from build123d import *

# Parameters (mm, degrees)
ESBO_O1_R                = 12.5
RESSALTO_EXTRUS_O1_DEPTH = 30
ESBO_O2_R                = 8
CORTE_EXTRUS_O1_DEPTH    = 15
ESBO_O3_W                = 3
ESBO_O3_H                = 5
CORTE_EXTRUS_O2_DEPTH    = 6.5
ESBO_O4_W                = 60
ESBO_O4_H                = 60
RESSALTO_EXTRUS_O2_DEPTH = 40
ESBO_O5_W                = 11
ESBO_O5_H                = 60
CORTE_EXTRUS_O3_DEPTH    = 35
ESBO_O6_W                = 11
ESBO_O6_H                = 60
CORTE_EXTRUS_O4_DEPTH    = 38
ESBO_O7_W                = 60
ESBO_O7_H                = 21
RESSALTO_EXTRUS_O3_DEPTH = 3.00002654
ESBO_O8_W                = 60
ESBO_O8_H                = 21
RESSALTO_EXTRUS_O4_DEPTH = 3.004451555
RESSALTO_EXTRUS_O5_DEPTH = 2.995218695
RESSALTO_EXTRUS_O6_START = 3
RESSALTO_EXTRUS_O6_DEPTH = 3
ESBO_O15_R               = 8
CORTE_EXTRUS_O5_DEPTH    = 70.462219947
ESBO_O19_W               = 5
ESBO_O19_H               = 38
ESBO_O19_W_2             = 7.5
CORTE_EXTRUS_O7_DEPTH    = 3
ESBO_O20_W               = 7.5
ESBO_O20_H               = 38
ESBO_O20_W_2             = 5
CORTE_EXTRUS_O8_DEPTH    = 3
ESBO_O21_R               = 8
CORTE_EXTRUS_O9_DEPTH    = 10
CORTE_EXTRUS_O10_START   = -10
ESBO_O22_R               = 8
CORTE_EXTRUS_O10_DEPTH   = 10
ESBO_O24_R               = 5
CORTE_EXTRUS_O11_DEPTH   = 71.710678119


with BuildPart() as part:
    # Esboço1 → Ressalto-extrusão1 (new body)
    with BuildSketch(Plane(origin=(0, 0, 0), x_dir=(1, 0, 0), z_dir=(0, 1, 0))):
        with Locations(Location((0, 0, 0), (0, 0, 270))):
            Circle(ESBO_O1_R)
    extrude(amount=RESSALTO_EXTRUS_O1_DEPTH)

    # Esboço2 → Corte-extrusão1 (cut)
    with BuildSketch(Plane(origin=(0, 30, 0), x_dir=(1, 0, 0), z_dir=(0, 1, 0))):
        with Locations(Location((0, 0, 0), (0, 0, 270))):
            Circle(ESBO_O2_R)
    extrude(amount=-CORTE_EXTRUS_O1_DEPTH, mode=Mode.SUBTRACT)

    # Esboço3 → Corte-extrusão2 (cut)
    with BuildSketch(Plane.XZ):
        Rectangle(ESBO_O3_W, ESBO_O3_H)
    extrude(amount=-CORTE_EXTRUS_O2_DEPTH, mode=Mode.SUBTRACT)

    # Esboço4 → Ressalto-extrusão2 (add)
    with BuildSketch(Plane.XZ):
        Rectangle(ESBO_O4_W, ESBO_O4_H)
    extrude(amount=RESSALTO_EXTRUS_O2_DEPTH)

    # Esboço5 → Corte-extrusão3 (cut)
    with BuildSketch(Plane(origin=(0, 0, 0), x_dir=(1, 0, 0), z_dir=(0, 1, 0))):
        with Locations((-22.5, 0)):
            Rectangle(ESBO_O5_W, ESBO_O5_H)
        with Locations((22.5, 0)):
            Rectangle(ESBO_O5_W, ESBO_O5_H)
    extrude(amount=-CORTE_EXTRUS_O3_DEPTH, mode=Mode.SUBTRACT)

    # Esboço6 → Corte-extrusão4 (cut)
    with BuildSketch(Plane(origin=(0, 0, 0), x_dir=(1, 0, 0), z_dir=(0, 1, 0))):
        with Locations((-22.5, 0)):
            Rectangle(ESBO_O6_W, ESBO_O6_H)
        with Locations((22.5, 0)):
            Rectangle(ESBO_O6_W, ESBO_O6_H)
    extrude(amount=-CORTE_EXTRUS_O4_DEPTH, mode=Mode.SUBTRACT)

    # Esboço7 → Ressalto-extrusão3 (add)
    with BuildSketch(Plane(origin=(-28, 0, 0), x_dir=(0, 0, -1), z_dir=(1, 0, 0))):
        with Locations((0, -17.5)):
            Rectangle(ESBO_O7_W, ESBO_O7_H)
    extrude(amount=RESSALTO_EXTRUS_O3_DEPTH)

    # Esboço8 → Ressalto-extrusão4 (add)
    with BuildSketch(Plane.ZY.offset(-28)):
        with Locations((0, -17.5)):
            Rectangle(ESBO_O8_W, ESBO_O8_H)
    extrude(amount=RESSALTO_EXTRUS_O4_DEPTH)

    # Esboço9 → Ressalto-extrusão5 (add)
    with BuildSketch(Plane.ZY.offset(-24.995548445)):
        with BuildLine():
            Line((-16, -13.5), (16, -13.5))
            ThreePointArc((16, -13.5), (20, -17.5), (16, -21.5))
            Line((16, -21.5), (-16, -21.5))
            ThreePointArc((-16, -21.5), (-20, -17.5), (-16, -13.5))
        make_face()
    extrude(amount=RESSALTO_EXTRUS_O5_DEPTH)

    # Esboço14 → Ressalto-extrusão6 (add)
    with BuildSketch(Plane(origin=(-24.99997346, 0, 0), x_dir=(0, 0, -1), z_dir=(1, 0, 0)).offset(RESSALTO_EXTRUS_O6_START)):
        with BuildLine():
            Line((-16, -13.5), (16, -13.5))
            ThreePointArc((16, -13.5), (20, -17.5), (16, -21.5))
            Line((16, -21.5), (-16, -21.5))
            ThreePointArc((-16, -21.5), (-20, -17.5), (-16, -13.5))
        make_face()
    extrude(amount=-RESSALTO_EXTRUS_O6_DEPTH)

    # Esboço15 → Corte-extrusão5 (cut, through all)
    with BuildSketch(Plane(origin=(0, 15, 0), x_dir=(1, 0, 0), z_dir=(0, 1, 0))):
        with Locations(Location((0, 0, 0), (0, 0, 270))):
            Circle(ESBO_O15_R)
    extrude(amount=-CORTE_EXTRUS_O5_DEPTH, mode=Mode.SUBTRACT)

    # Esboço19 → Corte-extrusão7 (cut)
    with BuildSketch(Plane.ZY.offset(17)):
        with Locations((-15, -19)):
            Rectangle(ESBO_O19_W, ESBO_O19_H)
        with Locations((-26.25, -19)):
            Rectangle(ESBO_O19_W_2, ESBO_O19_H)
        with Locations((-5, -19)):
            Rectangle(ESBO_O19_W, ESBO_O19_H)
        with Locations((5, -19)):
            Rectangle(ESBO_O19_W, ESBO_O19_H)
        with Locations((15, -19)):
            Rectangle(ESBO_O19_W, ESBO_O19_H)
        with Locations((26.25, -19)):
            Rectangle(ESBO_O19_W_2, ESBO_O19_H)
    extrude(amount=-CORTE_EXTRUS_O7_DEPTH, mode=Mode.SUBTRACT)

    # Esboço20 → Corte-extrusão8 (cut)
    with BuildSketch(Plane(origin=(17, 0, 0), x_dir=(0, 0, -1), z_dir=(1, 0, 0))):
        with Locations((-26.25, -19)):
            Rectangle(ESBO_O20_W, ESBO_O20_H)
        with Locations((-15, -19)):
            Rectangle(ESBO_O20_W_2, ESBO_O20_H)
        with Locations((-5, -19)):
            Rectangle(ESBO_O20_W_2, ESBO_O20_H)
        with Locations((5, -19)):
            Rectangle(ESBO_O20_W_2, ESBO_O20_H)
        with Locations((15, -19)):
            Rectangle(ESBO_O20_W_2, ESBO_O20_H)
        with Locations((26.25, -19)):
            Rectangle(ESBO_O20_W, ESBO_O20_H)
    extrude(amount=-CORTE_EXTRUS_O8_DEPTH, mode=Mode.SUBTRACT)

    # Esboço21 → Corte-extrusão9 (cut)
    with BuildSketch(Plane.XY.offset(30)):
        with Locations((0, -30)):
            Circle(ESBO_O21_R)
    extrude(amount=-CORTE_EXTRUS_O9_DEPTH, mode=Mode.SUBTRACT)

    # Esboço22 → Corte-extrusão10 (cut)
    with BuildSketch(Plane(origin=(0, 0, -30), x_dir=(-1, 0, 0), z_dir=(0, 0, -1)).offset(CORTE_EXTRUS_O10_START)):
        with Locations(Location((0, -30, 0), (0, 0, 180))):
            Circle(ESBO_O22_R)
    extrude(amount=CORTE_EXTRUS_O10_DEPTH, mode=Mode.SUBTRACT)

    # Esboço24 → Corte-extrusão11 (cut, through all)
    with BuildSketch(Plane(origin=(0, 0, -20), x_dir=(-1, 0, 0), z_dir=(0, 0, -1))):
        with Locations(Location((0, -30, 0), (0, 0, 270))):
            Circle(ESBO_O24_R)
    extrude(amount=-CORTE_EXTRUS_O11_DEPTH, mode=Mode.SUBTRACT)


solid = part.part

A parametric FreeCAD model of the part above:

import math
import FreeCAD as App
import Part
import Sketcher

doc = App.newDocument("Part")
params = doc.addObject("Spreadsheet::Sheet", "Params")
for row, (alias, value) in enumerate([
    ("sketch1_diameter", "25 mm"),
    ("pad1_length", "30 mm"),
    ("sketch2_diameter", "16 mm"),
    ("pocket1_length", "15 mm"),
    ("sketch3_width", "3 mm"),
    ("sketch3_height", "5 mm"),
    ("pocket2_length", "6.5 mm"),
    ("sketch4_width", "60 mm"),
    ("pad2_length", "40 mm"),
    ("sketch5_width", "11 mm"),
    ("sketch5_height", "60 mm"),
    ("pocket3_length", "35 mm"),
    ("sketch6_width", "11 mm"),
    ("sketch6_height", "60 mm"),
    ("pocket4_length", "38 mm"),
    ("sketch7_width", "21 mm"),
    ("sketch7_height", "60 mm"),
    ("pad3_length", "3.000027 mm"),
    ("sketch8_width", "21 mm"),
    ("sketch8_height", "60 mm"),
    ("pad4_length", "3.004452 mm"),
    ("sketch9_radius", "4 mm"),
    ("sketch9_height", "32 mm"),
    ("pad5_length", "2.995219 mm"),
    ("sketch10_radius", "4 mm"),
    ("sketch10_height", "32 mm"),
    ("pad6_length", "3 mm"),
    ("sketch11_diameter", "16 mm"),
    ("sketch12_width", "38 mm"),
    ("sketch12_height", "5 mm"),
    ("sketch12_height2", "7.5 mm"),
    ("pocket6_length", "3 mm"),
    ("sketch13_width", "38 mm"),
    ("sketch13_height", "5 mm"),
    ("sketch13_height2", "7.5 mm"),
    ("pocket7_length", "3 mm"),
    ("sketch14_diameter", "16 mm"),
    ("pocket8_length", "10 mm"),
    ("sketch15_diameter", "16 mm"),
    ("pocket9_length", "10 mm"),
    ("sketch16_diameter", "10 mm"),
], start=1):
    params.set(f"A{row}", alias)
    params.set(f"B{row}", "=" + value)
    params.setAlias(f"B{row}", alias)

body = doc.addObject("PartDesign::Body", "Body")

# Sketch on XZ plane
sketch1 = doc.addObject("Sketcher::SketchObject", "Sketch")
body.addObject(sketch1)
sketch1.AttachmentSupport = (doc.XZ_Plane, [""])
sketch1.MapMode = "FlatFace"
sketch1.addGeometry(Part.Circle(App.Vector(0, 0, 0), App.Vector(0, 0, 1), 12), False)
sketch1.addConstraint([
    Sketcher.Constraint("Coincident", 0, 3, -1, 1),
    Sketcher.Constraint("Diameter", 0, 25.0),
])
sketch1.setExpression("Constraints[1]", "Params.sketch1_diameter")
pad1 = doc.addObject("PartDesign::Pad", "Pad")
body.addObject(pad1)
pad1.Profile = sketch1
pad1.setExpression("Length", "Params.pad1_length")
pad1.Reversed = True

# Sketch on XZ plane
sketch2 = doc.addObject("Sketcher::SketchObject", "Sketch001")
body.addObject(sketch2)
sketch2.AttachmentSupport = (doc.XZ_Plane, [""])
sketch2.MapMode = "FlatFace"
sketch2.AttachmentOffset = App.Placement(App.Vector(0, 0, -30), App.Rotation())
sketch2.addGeometry(Part.Circle(App.Vector(0, 0, 0), App.Vector(0, 0, 1), 8), False)
sketch2.addConstraint([
    Sketcher.Constraint("Coincident", 0, 3, -1, 1),
    Sketcher.Constraint("Diameter", 0, 16.0),
])
sketch2.setExpression("Constraints[1]", "Params.sketch2_diameter")
pocket1 = doc.addObject("PartDesign::Pocket", "Pocket")
body.addObject(pocket1)
pocket1.Profile = sketch2
pocket1.setExpression("Length", "Params.pocket1_length")
pocket1.Reversed = True

# Sketch on XZ plane
sketch3 = doc.addObject("Sketcher::SketchObject", "Sketch002")
body.addObject(sketch3)
sketch3.AttachmentSupport = (doc.XZ_Plane, [""])
sketch3.MapMode = "FlatFace"
sketch3.addGeometry([
    Part.LineSegment(App.Vector(-1.5, 2.5, 0), App.Vector(-1.5, -2.5, 0)),
    Part.LineSegment(App.Vector(-1.5, -2.5, 0), App.Vector(1.5, -2.5, 0)),
    Part.LineSegment(App.Vector(1.5, -2.5, 0), App.Vector(1.5, 2.5, 0)),
    Part.LineSegment(App.Vector(1.5, 2.5, 0), App.Vector(-1.5, 2.5, 0)),
], False)
sketch3.addConstraint([
    Sketcher.Constraint("Coincident", 0, 2, 1, 1),
    Sketcher.Constraint("Coincident", 1, 2, 2, 1),
    Sketcher.Constraint("Coincident", 2, 2, 3, 1),
    Sketcher.Constraint("Coincident", 3, 2, 0, 1),
    Sketcher.Constraint("Vertical", 0),
    Sketcher.Constraint("Horizontal", 1),
    Sketcher.Constraint("Vertical", 2),
    Sketcher.Constraint("Horizontal", 3),
    Sketcher.Constraint("Symmetric", 0, 2, 2, 2, -1, 1),
    Sketcher.Constraint("DistanceX", 1, 1, 1, 2, 3.0),
    Sketcher.Constraint("DistanceY", 0, 2, 0, 1, 5.0),
])
sketch3.setExpression("Constraints[9]", "Params.sketch3_width")
sketch3.setExpression("Constraints[10]", "Params.sketch3_height")
pocket2 = doc.addObject("PartDesign::Pocket", "Pocket001")
body.addObject(pocket2)
pocket2.Profile = sketch3
pocket2.setExpression("Length", "Params.pocket2_length")

# Sketch on XZ plane
sketch4 = doc.addObject("Sketcher::SketchObject", "Sketch003")
body.addObject(sketch4)
sketch4.AttachmentSupport = (doc.XZ_Plane, [""])
sketch4.MapMode = "FlatFace"
sketch4.addGeometry([
    Part.LineSegment(App.Vector(-30, 30, 0), App.Vector(-30, -30, 0)),
    Part.LineSegment(App.Vector(-30, -30, 0), App.Vector(30, -30, 0)),
    Part.LineSegment(App.Vector(30, -30, 0), App.Vector(30, 30, 0)),
    Part.LineSegment(App.Vector(30, 30, 0), App.Vector(-30, 30, 0)),
], False)
sketch4.addConstraint([
    Sketcher.Constraint("Coincident", 0, 2, 1, 1),
    Sketcher.Constraint("Coincident", 1, 2, 2, 1),
    Sketcher.Constraint("Coincident", 2, 2, 3, 1),
    Sketcher.Constraint("Coincident", 3, 2, 0, 1),
    Sketcher.Constraint("Vertical", 0),
    Sketcher.Constraint("Horizontal", 1),
    Sketcher.Constraint("Vertical", 2),
    Sketcher.Constraint("Horizontal", 3),
    Sketcher.Constraint("Symmetric", 0, 2, 2, 2, -1, 1),
    Sketcher.Constraint("Equal", 3, 0),
    Sketcher.Constraint("DistanceX", 1, 1, 1, 2, 60.0),
])
sketch4.setExpression("Constraints[10]", "Params.sketch4_width")
pad2 = doc.addObject("PartDesign::Pad", "Pad001")
body.addObject(pad2)
pad2.Profile = sketch4
pad2.setExpression("Length", "Params.pad2_length")

# Sketch on XZ plane
sketch5 = doc.addObject("Sketcher::SketchObject", "Sketch004")
body.addObject(sketch5)
sketch5.AttachmentSupport = (doc.XZ_Plane, [""])
sketch5.MapMode = "FlatFace"
sketch5.addGeometry([
    Part.LineSegment(App.Vector(-28, -30, 0), App.Vector(-28, 30, 0)),  # 0
    Part.LineSegment(App.Vector(-28, 30, 0), App.Vector(-17, 30, 0)),  # 1
    Part.LineSegment(App.Vector(-17, 30, 0), App.Vector(-17, -30, 0)),  # 2
    Part.LineSegment(App.Vector(-17, -30, 0), App.Vector(-28, -30, 0)),  # 3
    Part.LineSegment(App.Vector(17, -30, 0), App.Vector(17, 30, 0)),  # 4
    Part.LineSegment(App.Vector(17, 30, 0), App.Vector(28, 30, 0)),  # 5
    Part.LineSegment(App.Vector(28, 30, 0), App.Vector(28, -30, 0)),  # 6
    Part.LineSegment(App.Vector(28, -30, 0), App.Vector(17, -30, 0)),  # 7
], False)
sketch5.addConstraint([
    Sketcher.Constraint("Coincident", 0, 2, 1, 1),
    Sketcher.Constraint("Coincident", 1, 2, 2, 1),
    Sketcher.Constraint("Coincident", 2, 2, 3, 1),
    Sketcher.Constraint("Coincident", 3, 2, 0, 1),
    Sketcher.Constraint("Coincident", 4, 2, 5, 1),
    Sketcher.Constraint("Coincident", 5, 2, 6, 1),
    Sketcher.Constraint("Coincident", 6, 2, 7, 1),
    Sketcher.Constraint("Coincident", 7, 2, 4, 1),
    Sketcher.Constraint("Vertical", 0),
    Sketcher.Constraint("Horizontal", 1),
    Sketcher.Constraint("Vertical", 2),
    Sketcher.Constraint("Horizontal", 3),
    Sketcher.Constraint("Vertical", 4),
    Sketcher.Constraint("Horizontal", 5),
    Sketcher.Constraint("Vertical", 6),
    Sketcher.Constraint("Horizontal", 7),
    Sketcher.Constraint("Symmetric", 2, 2, 4, 2, -1, 1),
    Sketcher.Constraint("Symmetric", 0, 2, 6, 2, -1, 1),
    Sketcher.Constraint("Horizontal", 1, 2, 4, 2),
    Sketcher.Constraint("DistanceX", 1, 1, 1, 2, 11.0),
    Sketcher.Constraint("DistanceY", 0, 1, 0, 2, 60.0),
    Sketcher.Constraint("DistanceX", 0, 2, -1, 1, 28.0),
])
sketch5.setExpression("Constraints[19]", "Params.sketch5_width")
sketch5.setExpression("Constraints[20]", "Params.sketch5_height")
pocket3 = doc.addObject("PartDesign::Pocket", "Pocket002")
body.addObject(pocket3)
pocket3.Profile = sketch5
pocket3.setExpression("Length", "Params.pocket3_length")
pocket3.Reversed = True

# Sketch on XZ plane
sketch6 = doc.addObject("Sketcher::SketchObject", "Sketch005")
body.addObject(sketch6)
sketch6.AttachmentSupport = (doc.XZ_Plane, [""])
sketch6.MapMode = "FlatFace"
sketch6.addGeometry([
    Part.LineSegment(App.Vector(-28, -30, 0), App.Vector(-28, 30, 0)),  # 0
    Part.LineSegment(App.Vector(-28, 30, 0), App.Vector(-17, 30, 0)),  # 1
    Part.LineSegment(App.Vector(-17, 30, 0), App.Vector(-17, -30, 0)),  # 2
    Part.LineSegment(App.Vector(-17, -30, 0), App.Vector(-28, -30, 0)),  # 3
    Part.LineSegment(App.Vector(17, -30, 0), App.Vector(17, 30, 0)),  # 4
    Part.LineSegment(App.Vector(17, 30, 0), App.Vector(28, 30, 0)),  # 5
    Part.LineSegment(App.Vector(28, 30, 0), App.Vector(28, -30, 0)),  # 6
    Part.LineSegment(App.Vector(28, -30, 0), App.Vector(17, -30, 0)),  # 7
], False)
sketch6.addConstraint([
    Sketcher.Constraint("Coincident", 0, 2, 1, 1),
    Sketcher.Constraint("Coincident", 1, 2, 2, 1),
    Sketcher.Constraint("Coincident", 2, 2, 3, 1),
    Sketcher.Constraint("Coincident", 3, 2, 0, 1),
    Sketcher.Constraint("Coincident", 4, 2, 5, 1),
    Sketcher.Constraint("Coincident", 5, 2, 6, 1),
    Sketcher.Constraint("Coincident", 6, 2, 7, 1),
    Sketcher.Constraint("Coincident", 7, 2, 4, 1),
    Sketcher.Constraint("Vertical", 0),
    Sketcher.Constraint("Horizontal", 1),
    Sketcher.Constraint("Vertical", 2),
    Sketcher.Constraint("Horizontal", 3),
    Sketcher.Constraint("Vertical", 4),
    Sketcher.Constraint("Horizontal", 5),
    Sketcher.Constraint("Vertical", 6),
    Sketcher.Constraint("Horizontal", 7),
    Sketcher.Constraint("Symmetric", 2, 2, 4, 2, -1, 1),
    Sketcher.Constraint("Symmetric", 0, 2, 6, 2, -1, 1),
    Sketcher.Constraint("Horizontal", 1, 2, 4, 2),
    Sketcher.Constraint("DistanceX", 1, 1, 1, 2, 11.0),
    Sketcher.Constraint("DistanceY", 0, 1, 0, 2, 60.0),
    Sketcher.Constraint("DistanceX", 0, 2, -1, 1, 28.0),
])
sketch6.setExpression("Constraints[19]", "Params.sketch6_width")
sketch6.setExpression("Constraints[20]", "Params.sketch6_height")
pocket4 = doc.addObject("PartDesign::Pocket", "Pocket003")
body.addObject(pocket4)
pocket4.Profile = sketch6
pocket4.setExpression("Length", "Params.pocket4_length")
pocket4.Reversed = True

# Sketch on YZ plane
sketch7 = doc.addObject("Sketcher::SketchObject", "Sketch006")
body.addObject(sketch7)
sketch7.AttachmentSupport = (doc.YZ_Plane, [""])
sketch7.MapMode = "FlatFace"
sketch7.AttachmentOffset = App.Placement(App.Vector(0, 0, -28), App.Rotation())
sketch7.addGeometry([
    Part.LineSegment(App.Vector(-7, 30, 0), App.Vector(-28, 30, 0)),
    Part.LineSegment(App.Vector(-28, 30, 0), App.Vector(-28, -30, 0)),
    Part.LineSegment(App.Vector(-28, -30, 0), App.Vector(-7, -30, 0)),
    Part.LineSegment(App.Vector(-7, -30, 0), App.Vector(-7, 30, 0)),
], False)
sketch7.addConstraint([
    Sketcher.Constraint("Coincident", 0, 2, 1, 1),
    Sketcher.Constraint("Coincident", 1, 2, 2, 1),
    Sketcher.Constraint("Coincident", 2, 2, 3, 1),
    Sketcher.Constraint("Coincident", 3, 2, 0, 1),
    Sketcher.Constraint("Horizontal", 0),
    Sketcher.Constraint("Vertical", 1),
    Sketcher.Constraint("Horizontal", 2),
    Sketcher.Constraint("Vertical", 3),
    Sketcher.Constraint("DistanceX", 0, 2, 0, 1, 21.0),
    Sketcher.Constraint("DistanceY", 1, 2, 1, 1, 60.0),
    Sketcher.Constraint("DistanceX", 0, 2, -1, 1, 28.0),
    Sketcher.Constraint("DistanceY", -1, 1, 0, 2, 30.0),
])
sketch7.setExpression("Constraints[8]", "Params.sketch7_width")
sketch7.setExpression("Constraints[9]", "Params.sketch7_height")
pad3 = doc.addObject("PartDesign::Pad", "Pad002")
body.addObject(pad3)
pad3.Profile = sketch7
pad3.setExpression("Length", "Params.pad3_length")

# Sketch on YZ plane
sketch8 = doc.addObject("Sketcher::SketchObject", "Sketch007")
body.addObject(sketch8)
sketch8.AttachmentSupport = (doc.YZ_Plane, [""])
sketch8.MapMode = "FlatFace"
sketch8.AttachmentOffset = App.Placement(App.Vector(0, 0, 28), App.Rotation())
sketch8.addGeometry([
    Part.LineSegment(App.Vector(-7, -30, 0), App.Vector(-28, -30, 0)),
    Part.LineSegment(App.Vector(-28, -30, 0), App.Vector(-28, 30, 0)),
    Part.LineSegment(App.Vector(-28, 30, 0), App.Vector(-7, 30, 0)),
    Part.LineSegment(App.Vector(-7, 30, 0), App.Vector(-7, -30, 0)),
], False)
sketch8.addConstraint([
    Sketcher.Constraint("Coincident", 0, 2, 1, 1),
    Sketcher.Constraint("Coincident", 1, 2, 2, 1),
    Sketcher.Constraint("Coincident", 2, 2, 3, 1),
    Sketcher.Constraint("Coincident", 3, 2, 0, 1),
    Sketcher.Constraint("Horizontal", 0),
    Sketcher.Constraint("Vertical", 1),
    Sketcher.Constraint("Horizontal", 2),
    Sketcher.Constraint("Vertical", 3),
    Sketcher.Constraint("DistanceX", 0, 2, 0, 1, 21.0),
    Sketcher.Constraint("DistanceY", 1, 1, 1, 2, 60.0),
    Sketcher.Constraint("DistanceX", 0, 2, -1, 1, 28.0),
    Sketcher.Constraint("DistanceY", 0, 2, -1, 1, 30.0),
])
sketch8.setExpression("Constraints[8]", "Params.sketch8_width")
sketch8.setExpression("Constraints[9]", "Params.sketch8_height")
pad4 = doc.addObject("PartDesign::Pad", "Pad003")
body.addObject(pad4)
pad4.Profile = sketch8
pad4.setExpression("Length", "Params.pad4_length")
pad4.Reversed = True

# Sketch on YZ plane
sketch9 = doc.addObject("Sketcher::SketchObject", "Sketch008")
body.addObject(sketch9)
sketch9.AttachmentSupport = (doc.YZ_Plane, [""])
sketch9.MapMode = "FlatFace"
sketch9.AttachmentOffset = App.Placement(App.Vector(0, 0, 24.995548), App.Rotation())
sketch9.addGeometry([
    Part.LineSegment(App.Vector(-13.5, 16, 0), App.Vector(-13.5, -16, 0)),
    Part.ArcOfCircle(Part.Circle(App.Vector(-17.5, -16, 0), App.Vector(0, 0, 1), 4), math.radians(180), math.radians(360)),
    Part.LineSegment(App.Vector(-21.5, -16, 0), App.Vector(-21.5, 16, 0)),
    Part.ArcOfCircle(Part.Circle(App.Vector(-17.5, 16, 0), App.Vector(0, 0, 1), 4), math.radians(0), math.radians(180)),
], False)
sketch9.addConstraint([
    Sketcher.Constraint("Tangent", 0, 2, 1, 2),
    Sketcher.Constraint("Tangent", 1, 1, 2, 1),
    Sketcher.Constraint("Tangent", 2, 2, 3, 2),
    Sketcher.Constraint("Tangent", 3, 1, 0, 1),
    Sketcher.Constraint("Vertical", 0),
    Sketcher.Constraint("Vertical", 2),
    Sketcher.Constraint("Radius", 1, 4.0),
    Sketcher.Constraint("DistanceY", 0, 2, 0, 1, 32.0),
    Sketcher.Constraint("DistanceY", 1, 3, -1, 1, 16.0),
    Sketcher.Constraint("DistanceX", 1, 3, -1, 1, 17.5),
])
sketch9.setExpression("Constraints[6]", "Params.sketch9_radius")
sketch9.setExpression("Constraints[7]", "Params.sketch9_height")
pad5 = doc.addObject("PartDesign::Pad", "Pad004")
body.addObject(pad5)
pad5.Profile = sketch9
pad5.setExpression("Length", "Params.pad5_length")
pad5.Reversed = True

# Sketch on YZ plane
sketch10 = doc.addObject("Sketcher::SketchObject", "Sketch009")
body.addObject(sketch10)
sketch10.AttachmentSupport = (doc.YZ_Plane, [""])
sketch10.MapMode = "FlatFace"
sketch10.AttachmentOffset = App.Placement(App.Vector(0, 0, -21.999973), App.Rotation())
sketch10.addGeometry([
    Part.LineSegment(App.Vector(-13.5, -16, 0), App.Vector(-13.5, 16, 0)),
    Part.ArcOfCircle(Part.Circle(App.Vector(-17.5, 16, 0), App.Vector(0, 0, 1), 4), math.radians(0), math.radians(180)),
    Part.LineSegment(App.Vector(-21.5, 16, 0), App.Vector(-21.5, -16, 0)),
    Part.ArcOfCircle(Part.Circle(App.Vector(-17.5, -16, 0), App.Vector(0, 0, 1), 4), math.radians(180), math.radians(360)),
], False)
sketch10.addConstraint([
    Sketcher.Constraint("Tangent", 0, 2, 1, 1),
    Sketcher.Constraint("Tangent", 1, 2, 2, 1),
    Sketcher.Constraint("Tangent", 2, 2, 3, 1),
    Sketcher.Constraint("Tangent", 3, 2, 0, 1),
    Sketcher.Constraint("Vertical", 0),
    Sketcher.Constraint("Vertical", 2),
    Sketcher.Constraint("Radius", 1, 4.0),
    Sketcher.Constraint("DistanceY", 0, 1, 0, 2, 32.0),
    Sketcher.Constraint("DistanceY", -1, 1, 1, 3, 16.0),
    Sketcher.Constraint("DistanceX", 1, 3, -1, 1, 17.5),
])
sketch10.setExpression("Constraints[6]", "Params.sketch10_radius")
sketch10.setExpression("Constraints[7]", "Params.sketch10_height")
pad6 = doc.addObject("PartDesign::Pad", "Pad005")
body.addObject(pad6)
pad6.Profile = sketch10
pad6.setExpression("Length", "Params.pad6_length")
pad6.Reversed = True

# Sketch on XZ plane
sketch11 = doc.addObject("Sketcher::SketchObject", "Sketch010")
body.addObject(sketch11)
sketch11.AttachmentSupport = (doc.XZ_Plane, [""])
sketch11.MapMode = "FlatFace"
sketch11.AttachmentOffset = App.Placement(App.Vector(0, 0, -15), App.Rotation())
sketch11.addGeometry(Part.Circle(App.Vector(0, 0, 0), App.Vector(0, 0, 1), 8), False)
sketch11.addConstraint([
    Sketcher.Constraint("Coincident", 0, 3, -1, 1),
    Sketcher.Constraint("Diameter", 0, 16.0),
])
sketch11.setExpression("Constraints[1]", "Params.sketch11_diameter")
pocket5 = doc.addObject("PartDesign::Pocket", "Pocket004")
body.addObject(pocket5)
pocket5.Profile = sketch11
pocket5.Type = "ThroughAll"
pocket5.Reversed = True

# Sketch on YZ plane
sketch12 = doc.addObject("Sketcher::SketchObject", "Sketch011")
body.addObject(sketch12)
sketch12.AttachmentSupport = (doc.YZ_Plane, [""])
sketch12.MapMode = "FlatFace"
sketch12.AttachmentOffset = App.Placement(App.Vector(0, 0, -17), App.Rotation())
sketch12.addGeometry([
    Part.LineSegment(App.Vector(0, -18, 0), App.Vector(-38, -18, 0)),  # 0
    Part.LineSegment(App.Vector(-38, -18, 0), App.Vector(-38, -12, 0)),  # 1
    Part.LineSegment(App.Vector(-38, -12, 0), App.Vector(0, -12, 0)),  # 2
    Part.LineSegment(App.Vector(0, -12, 0), App.Vector(0, -18, 0)),  # 3
    Part.LineSegment(App.Vector(0, -30, 0), App.Vector(-38, -30, 0)),  # 4
    Part.LineSegment(App.Vector(-38, -30, 0), App.Vector(-38, -22, 0)),  # 5
    Part.LineSegment(App.Vector(-38, -22, 0), App.Vector(0, -22, 0)),  # 6
    Part.LineSegment(App.Vector(0, -22, 0), App.Vector(0, -30, 0)),  # 7
    Part.LineSegment(App.Vector(0, -8, 0), App.Vector(-38, -8, 0)),  # 8
    Part.LineSegment(App.Vector(-38, -8, 0), App.Vector(-38, -2, 0)),  # 9
    Part.LineSegment(App.Vector(-38, -2, 0), App.Vector(0, -2, 0)),  # 10
    Part.LineSegment(App.Vector(0, -2, 0), App.Vector(0, -8, 0)),  # 11
    Part.LineSegment(App.Vector(0, 2, 0), App.Vector(-38, 2, 0)),  # 12
    Part.LineSegment(App.Vector(-38, 2, 0), App.Vector(-38, 8, 0)),  # 13
    Part.LineSegment(App.Vector(-38, 8, 0), App.Vector(0, 8, 0)),  # 14
    Part.LineSegment(App.Vector(0, 8, 0), App.Vector(0, 2, 0)),  # 15
    Part.LineSegment(App.Vector(0, 12, 0), App.Vector(-38, 12, 0)),  # 16
    Part.LineSegment(App.Vector(-38, 12, 0), App.Vector(-38, 18, 0)),  # 17
    Part.LineSegment(App.Vector(-38, 18, 0), App.Vector(0, 18, 0)),  # 18
    Part.LineSegment(App.Vector(0, 18, 0), App.Vector(0, 12, 0)),  # 19
    Part.LineSegment(App.Vector(0, 22, 0), App.Vector(-38, 22, 0)),  # 20
    Part.LineSegment(App.Vector(-38, 22, 0), App.Vector(-38, 30, 0)),  # 21
    Part.LineSegment(App.Vector(-38, 30, 0), App.Vector(0, 30, 0)),  # 22
    Part.LineSegment(App.Vector(0, 30, 0), App.Vector(0, 22, 0)),  # 23
], False)
sketch12.addConstraint([
    Sketcher.Constraint("Coincident", 0, 2, 1, 1),
    Sketcher.Constraint("Coincident", 1, 2, 2, 1),
    Sketcher.Constraint("Coincident", 2, 2, 3, 1),
    Sketcher.Constraint("Coincident", 3, 2, 0, 1),
    Sketcher.Constraint("Coincident", 4, 2, 5, 1),
    Sketcher.Constraint("Coincident", 5, 2, 6, 1),
    Sketcher.Constraint("Coincident", 6, 2, 7, 1),
    Sketcher.Constraint("Coincident", 7, 2, 4, 1),
    Sketcher.Constraint("Coincident", 8, 2, 9, 1),
    Sketcher.Constraint("Coincident", 9, 2, 10, 1),
    Sketcher.Constraint("Coincident", 10, 2, 11, 1),
    Sketcher.Constraint("Coincident", 11, 2, 8, 1),
    Sketcher.Constraint("Coincident", 12, 2, 13, 1),
    Sketcher.Constraint("Coincident", 13, 2, 14, 1),
    Sketcher.Constraint("Coincident", 14, 2, 15, 1),
    Sketcher.Constraint("Coincident", 15, 2, 12, 1),
    Sketcher.Constraint("Coincident", 16, 2, 17, 1),
    Sketcher.Constraint("Coincident", 17, 2, 18, 1),
    Sketcher.Constraint("Coincident", 18, 2, 19, 1),
    Sketcher.Constraint("Coincident", 19, 2, 16, 1),
    Sketcher.Constraint("Coincident", 20, 2, 21, 1),
    Sketcher.Constraint("Coincident", 21, 2, 22, 1),
    Sketcher.Constraint("Coincident", 22, 2, 23, 1),
    Sketcher.Constraint("Coincident", 23, 2, 20, 1),
    Sketcher.Constraint("Horizontal", 0),
    Sketcher.Constraint("Vertical", 1),
    Sketcher.Constraint("Horizontal", 2),
    Sketcher.Constraint("Vertical", 3),
    Sketcher.Constraint("Horizontal", 4),
    Sketcher.Constraint("Vertical", 5),
    Sketcher.Constraint("Horizontal", 6),
    Sketcher.Constraint("Vertical", 7),
    Sketcher.Constraint("Horizontal", 8),
    Sketcher.Constraint("Vertical", 9),
    Sketcher.Constraint("Horizontal", 10),
    Sketcher.Constraint("Vertical", 11),
    Sketcher.Constraint("Horizontal", 12),
    Sketcher.Constraint("Vertical", 13),
    Sketcher.Constraint("Horizontal", 14),
    Sketcher.Constraint("Vertical", 15),
    Sketcher.Constraint("Horizontal", 16),
    Sketcher.Constraint("Vertical", 17),
    Sketcher.Constraint("Horizontal", 18),
    Sketcher.Constraint("Vertical", 19),
    Sketcher.Constraint("Horizontal", 20),
    Sketcher.Constraint("Vertical", 21),
    Sketcher.Constraint("Horizontal", 22),
    Sketcher.Constraint("Vertical", 23),
    Sketcher.Constraint("Symmetric", 11, 2, 14, 2, -1, 1),
    Sketcher.Constraint("Symmetric", 3, 2, 18, 2, -1, 1),
    Sketcher.Constraint("Symmetric", 7, 2, 22, 2, -1, 1),
    Sketcher.Constraint("Symmetric", 9, 2, 12, 2, -1),
    Sketcher.Constraint("Symmetric", 1, 2, 16, 2, -1),
    Sketcher.Constraint("Symmetric", 5, 2, 20, 2, -1),
    Sketcher.Constraint("PointOnObject", 2, 2, -2),
    Sketcher.Constraint("PointOnObject", 6, 2, -2),
    Sketcher.Constraint("PointOnObject", 10, 2, -2),
    Sketcher.Constraint("Vertical", 1, 2, 4, 2),
    Sketcher.Constraint("Vertical", 5, 2, 8, 2),
    Sketcher.Constraint("Equal", 3, 9),
    Sketcher.Constraint("DistanceX", 0, 2, 0, 1, 38.0),
    Sketcher.Constraint("DistanceY", 1, 1, 1, 2, 5.0),
    Sketcher.Constraint("DistanceY", 5, 1, 5, 2, 7.5),
    Sketcher.Constraint("DistanceY", 4, 2, -1, 1, 30.0),
    Sketcher.Constraint("DistanceY", 5, 2, 0, 2, 5.0),
    Sketcher.Constraint("DistanceY", 1, 2, 8, 2, 5.0),
])
sketch12.setExpression("Constraints[60]", "Params.sketch12_width")
sketch12.setExpression("Constraints[61]", "Params.sketch12_height")
sketch12.setExpression("Constraints[62]", "Params.sketch12_height2")
pocket6 = doc.addObject("PartDesign::Pocket", "Pocket005")
body.addObject(pocket6)
pocket6.Profile = sketch12
pocket6.setExpression("Length", "Params.pocket6_length")
pocket6.Reversed = True

# Sketch on YZ plane
sketch13 = doc.addObject("Sketcher::SketchObject", "Sketch012")
body.addObject(sketch13)
sketch13.AttachmentSupport = (doc.YZ_Plane, [""])
sketch13.MapMode = "FlatFace"
sketch13.AttachmentOffset = App.Placement(App.Vector(0, 0, 17), App.Rotation())
sketch13.addGeometry([
    Part.LineSegment(App.Vector(0, 30, 0), App.Vector(-38, 30, 0)),  # 0
    Part.LineSegment(App.Vector(-38, 30, 0), App.Vector(-38, 22, 0)),  # 1
    Part.LineSegment(App.Vector(-38, 22, 0), App.Vector(0, 22, 0)),  # 2
    Part.LineSegment(App.Vector(0, 22, 0), App.Vector(0, 30, 0)),  # 3
    Part.LineSegment(App.Vector(0, 18, 0), App.Vector(-38, 18, 0)),  # 4
    Part.LineSegment(App.Vector(-38, 18, 0), App.Vector(-38, 12, 0)),  # 5
    Part.LineSegment(App.Vector(-38, 12, 0), App.Vector(0, 12, 0)),  # 6
    Part.LineSegment(App.Vector(0, 12, 0), App.Vector(0, 18, 0)),  # 7
    Part.LineSegment(App.Vector(0, 8, 0), App.Vector(-38, 8, 0)),  # 8
    Part.LineSegment(App.Vector(-38, 8, 0), App.Vector(-38, 2, 0)),  # 9
    Part.LineSegment(App.Vector(-38, 2, 0), App.Vector(0, 2, 0)),  # 10
    Part.LineSegment(App.Vector(0, 2, 0), App.Vector(0, 8, 0)),  # 11
    Part.LineSegment(App.Vector(0, -2, 0), App.Vector(-38, -2, 0)),  # 12
    Part.LineSegment(App.Vector(-38, -2, 0), App.Vector(-38, -8, 0)),  # 13
    Part.LineSegment(App.Vector(-38, -8, 0), App.Vector(0, -8, 0)),  # 14
    Part.LineSegment(App.Vector(0, -8, 0), App.Vector(0, -2, 0)),  # 15
    Part.LineSegment(App.Vector(0, -12, 0), App.Vector(-38, -12, 0)),  # 16
    Part.LineSegment(App.Vector(-38, -12, 0), App.Vector(-38, -18, 0)),  # 17
    Part.LineSegment(App.Vector(-38, -18, 0), App.Vector(0, -18, 0)),  # 18
    Part.LineSegment(App.Vector(0, -18, 0), App.Vector(0, -12, 0)),  # 19
    Part.LineSegment(App.Vector(0, -22, 0), App.Vector(-38, -22, 0)),  # 20
    Part.LineSegment(App.Vector(-38, -22, 0), App.Vector(-38, -30, 0)),  # 21
    Part.LineSegment(App.Vector(-38, -30, 0), App.Vector(0, -30, 0)),  # 22
    Part.LineSegment(App.Vector(0, -30, 0), App.Vector(0, -22, 0)),  # 23
], False)
sketch13.addConstraint([
    Sketcher.Constraint("Coincident", 0, 2, 1, 1),
    Sketcher.Constraint("Coincident", 1, 2, 2, 1),
    Sketcher.Constraint("Coincident", 2, 2, 3, 1),
    Sketcher.Constraint("Coincident", 3, 2, 0, 1),
    Sketcher.Constraint("Coincident", 4, 2, 5, 1),
    Sketcher.Constraint("Coincident", 5, 2, 6, 1),
    Sketcher.Constraint("Coincident", 6, 2, 7, 1),
    Sketcher.Constraint("Coincident", 7, 2, 4, 1),
    Sketcher.Constraint("Coincident", 8, 2, 9, 1),
    Sketcher.Constraint("Coincident", 9, 2, 10, 1),
    Sketcher.Constraint("Coincident", 10, 2, 11, 1),
    Sketcher.Constraint("Coincident", 11, 2, 8, 1),
    Sketcher.Constraint("Coincident", 12, 2, 13, 1),
    Sketcher.Constraint("Coincident", 13, 2, 14, 1),
    Sketcher.Constraint("Coincident", 14, 2, 15, 1),
    Sketcher.Constraint("Coincident", 15, 2, 12, 1),
    Sketcher.Constraint("Coincident", 16, 2, 17, 1),
    Sketcher.Constraint("Coincident", 17, 2, 18, 1),
    Sketcher.Constraint("Coincident", 18, 2, 19, 1),
    Sketcher.Constraint("Coincident", 19, 2, 16, 1),
    Sketcher.Constraint("Coincident", 20, 2, 21, 1),
    Sketcher.Constraint("Coincident", 21, 2, 22, 1),
    Sketcher.Constraint("Coincident", 22, 2, 23, 1),
    Sketcher.Constraint("Coincident", 23, 2, 20, 1),
    Sketcher.Constraint("Horizontal", 0),
    Sketcher.Constraint("Vertical", 1),
    Sketcher.Constraint("Horizontal", 2),
    Sketcher.Constraint("Vertical", 3),
    Sketcher.Constraint("Horizontal", 4),
    Sketcher.Constraint("Vertical", 5),
    Sketcher.Constraint("Horizontal", 6),
    Sketcher.Constraint("Vertical", 7),
    Sketcher.Constraint("Horizontal", 8),
    Sketcher.Constraint("Vertical", 9),
    Sketcher.Constraint("Horizontal", 10),
    Sketcher.Constraint("Vertical", 11),
    Sketcher.Constraint("Horizontal", 12),
    Sketcher.Constraint("Vertical", 13),
    Sketcher.Constraint("Horizontal", 14),
    Sketcher.Constraint("Vertical", 15),
    Sketcher.Constraint("Horizontal", 16),
    Sketcher.Constraint("Vertical", 17),
    Sketcher.Constraint("Horizontal", 18),
    Sketcher.Constraint("Vertical", 19),
    Sketcher.Constraint("Horizontal", 20),
    Sketcher.Constraint("Vertical", 21),
    Sketcher.Constraint("Horizontal", 22),
    Sketcher.Constraint("Vertical", 23),
    Sketcher.Constraint("Symmetric", 11, 2, 14, 2, -1, 1),
    Sketcher.Constraint("Symmetric", 7, 2, 18, 2, -1, 1),
    Sketcher.Constraint("Symmetric", 3, 2, 22, 2, -1, 1),
    Sketcher.Constraint("Symmetric", 9, 2, 12, 2, -1),
    Sketcher.Constraint("Symmetric", 5, 2, 16, 2, -1),
    Sketcher.Constraint("Symmetric", 1, 2, 20, 2, -1),
    Sketcher.Constraint("PointOnObject", 2, 2, -2),
    Sketcher.Constraint("PointOnObject", 6, 2, -2),
    Sketcher.Constraint("PointOnObject", 10, 2, -2),
    Sketcher.Constraint("Vertical", 1, 2, 4, 2),
    Sketcher.Constraint("Vertical", 5, 2, 8, 2),
    Sketcher.Constraint("Equal", 7, 9),
    Sketcher.Constraint("DistanceX", 0, 2, 0, 1, 38.0),
    Sketcher.Constraint("DistanceY", 5, 2, 5, 1, 5.0),
    Sketcher.Constraint("DistanceY", 1, 2, 1, 1, 7.5),
    Sketcher.Constraint("DistanceY", -1, 1, 0, 2, 30.0),
    Sketcher.Constraint("DistanceY", 4, 2, 1, 2, 5.0),
    Sketcher.Constraint("DistanceY", 8, 2, 5, 2, 5.0),
])
sketch13.setExpression("Constraints[60]", "Params.sketch13_width")
sketch13.setExpression("Constraints[61]", "Params.sketch13_height")
sketch13.setExpression("Constraints[62]", "Params.sketch13_height2")
pocket7 = doc.addObject("PartDesign::Pocket", "Pocket006")
body.addObject(pocket7)
pocket7.Profile = sketch13
pocket7.setExpression("Length", "Params.pocket7_length")

# Sketch on XY plane
sketch14 = doc.addObject("Sketcher::SketchObject", "Sketch013")
body.addObject(sketch14)
sketch14.AttachmentSupport = (doc.XY_Plane, [""])
sketch14.MapMode = "FlatFace"
sketch14.AttachmentOffset = App.Placement(App.Vector(0, 0, 30), App.Rotation())
sketch14.addGeometry(Part.Circle(App.Vector(0, -30, 0), App.Vector(0, 0, 1), 8), False)
sketch14.addConstraint([
    Sketcher.Constraint("PointOnObject", 0, 3, -2),
    Sketcher.Constraint("Diameter", 0, 16.0),
    Sketcher.Constraint("DistanceY", 0, 3, -1, 1, 30.0),
])
sketch14.setExpression("Constraints[1]", "Params.sketch14_diameter")
pocket8 = doc.addObject("PartDesign::Pocket", "Pocket007")
body.addObject(pocket8)
pocket8.Profile = sketch14
pocket8.setExpression("Length", "Params.pocket8_length")

# Sketch on XY plane
sketch15 = doc.addObject("Sketcher::SketchObject", "Sketch014")
body.addObject(sketch15)
sketch15.AttachmentSupport = (doc.XY_Plane, [""])
sketch15.MapMode = "FlatFace"
sketch15.AttachmentOffset = App.Placement(App.Vector(0, 0, -20), App.Rotation())
sketch15.addGeometry(Part.Circle(App.Vector(0, -30, 0), App.Vector(0, 0, 1), 8), False)
sketch15.addConstraint([
    Sketcher.Constraint("PointOnObject", 0, 3, -2),
    Sketcher.Constraint("Diameter", 0, 16.0),
    Sketcher.Constraint("DistanceY", 0, 3, -1, 1, 30.0),
])
sketch15.setExpression("Constraints[1]", "Params.sketch15_diameter")
pocket9 = doc.addObject("PartDesign::Pocket", "Pocket008")
body.addObject(pocket9)
pocket9.Profile = sketch15
pocket9.setExpression("Length", "Params.pocket9_length")

# Sketch on XY plane
sketch16 = doc.addObject("Sketcher::SketchObject", "Sketch015")
body.addObject(sketch16)
sketch16.AttachmentSupport = (doc.XY_Plane, [""])
sketch16.MapMode = "FlatFace"
sketch16.AttachmentOffset = App.Placement(App.Vector(0, 0, -20), App.Rotation())
sketch16.addGeometry(Part.Circle(App.Vector(0, -30, 0), App.Vector(0, 0, 1), 5), False)
sketch16.addConstraint([
    Sketcher.Constraint("PointOnObject", 0, 3, -2),
    Sketcher.Constraint("Diameter", 0, 10.0),
    Sketcher.Constraint("DistanceY", 0, 3, -1, 1, 30.0),
])
sketch16.setExpression("Constraints[1]", "Params.sketch16_diameter")
pocket10 = doc.addObject("PartDesign::Pocket", "Pocket009")
body.addObject(pocket10)
pocket10.Profile = sketch16
pocket10.Type = "ThroughAll"
pocket10.Reversed = True

doc.recompute()
